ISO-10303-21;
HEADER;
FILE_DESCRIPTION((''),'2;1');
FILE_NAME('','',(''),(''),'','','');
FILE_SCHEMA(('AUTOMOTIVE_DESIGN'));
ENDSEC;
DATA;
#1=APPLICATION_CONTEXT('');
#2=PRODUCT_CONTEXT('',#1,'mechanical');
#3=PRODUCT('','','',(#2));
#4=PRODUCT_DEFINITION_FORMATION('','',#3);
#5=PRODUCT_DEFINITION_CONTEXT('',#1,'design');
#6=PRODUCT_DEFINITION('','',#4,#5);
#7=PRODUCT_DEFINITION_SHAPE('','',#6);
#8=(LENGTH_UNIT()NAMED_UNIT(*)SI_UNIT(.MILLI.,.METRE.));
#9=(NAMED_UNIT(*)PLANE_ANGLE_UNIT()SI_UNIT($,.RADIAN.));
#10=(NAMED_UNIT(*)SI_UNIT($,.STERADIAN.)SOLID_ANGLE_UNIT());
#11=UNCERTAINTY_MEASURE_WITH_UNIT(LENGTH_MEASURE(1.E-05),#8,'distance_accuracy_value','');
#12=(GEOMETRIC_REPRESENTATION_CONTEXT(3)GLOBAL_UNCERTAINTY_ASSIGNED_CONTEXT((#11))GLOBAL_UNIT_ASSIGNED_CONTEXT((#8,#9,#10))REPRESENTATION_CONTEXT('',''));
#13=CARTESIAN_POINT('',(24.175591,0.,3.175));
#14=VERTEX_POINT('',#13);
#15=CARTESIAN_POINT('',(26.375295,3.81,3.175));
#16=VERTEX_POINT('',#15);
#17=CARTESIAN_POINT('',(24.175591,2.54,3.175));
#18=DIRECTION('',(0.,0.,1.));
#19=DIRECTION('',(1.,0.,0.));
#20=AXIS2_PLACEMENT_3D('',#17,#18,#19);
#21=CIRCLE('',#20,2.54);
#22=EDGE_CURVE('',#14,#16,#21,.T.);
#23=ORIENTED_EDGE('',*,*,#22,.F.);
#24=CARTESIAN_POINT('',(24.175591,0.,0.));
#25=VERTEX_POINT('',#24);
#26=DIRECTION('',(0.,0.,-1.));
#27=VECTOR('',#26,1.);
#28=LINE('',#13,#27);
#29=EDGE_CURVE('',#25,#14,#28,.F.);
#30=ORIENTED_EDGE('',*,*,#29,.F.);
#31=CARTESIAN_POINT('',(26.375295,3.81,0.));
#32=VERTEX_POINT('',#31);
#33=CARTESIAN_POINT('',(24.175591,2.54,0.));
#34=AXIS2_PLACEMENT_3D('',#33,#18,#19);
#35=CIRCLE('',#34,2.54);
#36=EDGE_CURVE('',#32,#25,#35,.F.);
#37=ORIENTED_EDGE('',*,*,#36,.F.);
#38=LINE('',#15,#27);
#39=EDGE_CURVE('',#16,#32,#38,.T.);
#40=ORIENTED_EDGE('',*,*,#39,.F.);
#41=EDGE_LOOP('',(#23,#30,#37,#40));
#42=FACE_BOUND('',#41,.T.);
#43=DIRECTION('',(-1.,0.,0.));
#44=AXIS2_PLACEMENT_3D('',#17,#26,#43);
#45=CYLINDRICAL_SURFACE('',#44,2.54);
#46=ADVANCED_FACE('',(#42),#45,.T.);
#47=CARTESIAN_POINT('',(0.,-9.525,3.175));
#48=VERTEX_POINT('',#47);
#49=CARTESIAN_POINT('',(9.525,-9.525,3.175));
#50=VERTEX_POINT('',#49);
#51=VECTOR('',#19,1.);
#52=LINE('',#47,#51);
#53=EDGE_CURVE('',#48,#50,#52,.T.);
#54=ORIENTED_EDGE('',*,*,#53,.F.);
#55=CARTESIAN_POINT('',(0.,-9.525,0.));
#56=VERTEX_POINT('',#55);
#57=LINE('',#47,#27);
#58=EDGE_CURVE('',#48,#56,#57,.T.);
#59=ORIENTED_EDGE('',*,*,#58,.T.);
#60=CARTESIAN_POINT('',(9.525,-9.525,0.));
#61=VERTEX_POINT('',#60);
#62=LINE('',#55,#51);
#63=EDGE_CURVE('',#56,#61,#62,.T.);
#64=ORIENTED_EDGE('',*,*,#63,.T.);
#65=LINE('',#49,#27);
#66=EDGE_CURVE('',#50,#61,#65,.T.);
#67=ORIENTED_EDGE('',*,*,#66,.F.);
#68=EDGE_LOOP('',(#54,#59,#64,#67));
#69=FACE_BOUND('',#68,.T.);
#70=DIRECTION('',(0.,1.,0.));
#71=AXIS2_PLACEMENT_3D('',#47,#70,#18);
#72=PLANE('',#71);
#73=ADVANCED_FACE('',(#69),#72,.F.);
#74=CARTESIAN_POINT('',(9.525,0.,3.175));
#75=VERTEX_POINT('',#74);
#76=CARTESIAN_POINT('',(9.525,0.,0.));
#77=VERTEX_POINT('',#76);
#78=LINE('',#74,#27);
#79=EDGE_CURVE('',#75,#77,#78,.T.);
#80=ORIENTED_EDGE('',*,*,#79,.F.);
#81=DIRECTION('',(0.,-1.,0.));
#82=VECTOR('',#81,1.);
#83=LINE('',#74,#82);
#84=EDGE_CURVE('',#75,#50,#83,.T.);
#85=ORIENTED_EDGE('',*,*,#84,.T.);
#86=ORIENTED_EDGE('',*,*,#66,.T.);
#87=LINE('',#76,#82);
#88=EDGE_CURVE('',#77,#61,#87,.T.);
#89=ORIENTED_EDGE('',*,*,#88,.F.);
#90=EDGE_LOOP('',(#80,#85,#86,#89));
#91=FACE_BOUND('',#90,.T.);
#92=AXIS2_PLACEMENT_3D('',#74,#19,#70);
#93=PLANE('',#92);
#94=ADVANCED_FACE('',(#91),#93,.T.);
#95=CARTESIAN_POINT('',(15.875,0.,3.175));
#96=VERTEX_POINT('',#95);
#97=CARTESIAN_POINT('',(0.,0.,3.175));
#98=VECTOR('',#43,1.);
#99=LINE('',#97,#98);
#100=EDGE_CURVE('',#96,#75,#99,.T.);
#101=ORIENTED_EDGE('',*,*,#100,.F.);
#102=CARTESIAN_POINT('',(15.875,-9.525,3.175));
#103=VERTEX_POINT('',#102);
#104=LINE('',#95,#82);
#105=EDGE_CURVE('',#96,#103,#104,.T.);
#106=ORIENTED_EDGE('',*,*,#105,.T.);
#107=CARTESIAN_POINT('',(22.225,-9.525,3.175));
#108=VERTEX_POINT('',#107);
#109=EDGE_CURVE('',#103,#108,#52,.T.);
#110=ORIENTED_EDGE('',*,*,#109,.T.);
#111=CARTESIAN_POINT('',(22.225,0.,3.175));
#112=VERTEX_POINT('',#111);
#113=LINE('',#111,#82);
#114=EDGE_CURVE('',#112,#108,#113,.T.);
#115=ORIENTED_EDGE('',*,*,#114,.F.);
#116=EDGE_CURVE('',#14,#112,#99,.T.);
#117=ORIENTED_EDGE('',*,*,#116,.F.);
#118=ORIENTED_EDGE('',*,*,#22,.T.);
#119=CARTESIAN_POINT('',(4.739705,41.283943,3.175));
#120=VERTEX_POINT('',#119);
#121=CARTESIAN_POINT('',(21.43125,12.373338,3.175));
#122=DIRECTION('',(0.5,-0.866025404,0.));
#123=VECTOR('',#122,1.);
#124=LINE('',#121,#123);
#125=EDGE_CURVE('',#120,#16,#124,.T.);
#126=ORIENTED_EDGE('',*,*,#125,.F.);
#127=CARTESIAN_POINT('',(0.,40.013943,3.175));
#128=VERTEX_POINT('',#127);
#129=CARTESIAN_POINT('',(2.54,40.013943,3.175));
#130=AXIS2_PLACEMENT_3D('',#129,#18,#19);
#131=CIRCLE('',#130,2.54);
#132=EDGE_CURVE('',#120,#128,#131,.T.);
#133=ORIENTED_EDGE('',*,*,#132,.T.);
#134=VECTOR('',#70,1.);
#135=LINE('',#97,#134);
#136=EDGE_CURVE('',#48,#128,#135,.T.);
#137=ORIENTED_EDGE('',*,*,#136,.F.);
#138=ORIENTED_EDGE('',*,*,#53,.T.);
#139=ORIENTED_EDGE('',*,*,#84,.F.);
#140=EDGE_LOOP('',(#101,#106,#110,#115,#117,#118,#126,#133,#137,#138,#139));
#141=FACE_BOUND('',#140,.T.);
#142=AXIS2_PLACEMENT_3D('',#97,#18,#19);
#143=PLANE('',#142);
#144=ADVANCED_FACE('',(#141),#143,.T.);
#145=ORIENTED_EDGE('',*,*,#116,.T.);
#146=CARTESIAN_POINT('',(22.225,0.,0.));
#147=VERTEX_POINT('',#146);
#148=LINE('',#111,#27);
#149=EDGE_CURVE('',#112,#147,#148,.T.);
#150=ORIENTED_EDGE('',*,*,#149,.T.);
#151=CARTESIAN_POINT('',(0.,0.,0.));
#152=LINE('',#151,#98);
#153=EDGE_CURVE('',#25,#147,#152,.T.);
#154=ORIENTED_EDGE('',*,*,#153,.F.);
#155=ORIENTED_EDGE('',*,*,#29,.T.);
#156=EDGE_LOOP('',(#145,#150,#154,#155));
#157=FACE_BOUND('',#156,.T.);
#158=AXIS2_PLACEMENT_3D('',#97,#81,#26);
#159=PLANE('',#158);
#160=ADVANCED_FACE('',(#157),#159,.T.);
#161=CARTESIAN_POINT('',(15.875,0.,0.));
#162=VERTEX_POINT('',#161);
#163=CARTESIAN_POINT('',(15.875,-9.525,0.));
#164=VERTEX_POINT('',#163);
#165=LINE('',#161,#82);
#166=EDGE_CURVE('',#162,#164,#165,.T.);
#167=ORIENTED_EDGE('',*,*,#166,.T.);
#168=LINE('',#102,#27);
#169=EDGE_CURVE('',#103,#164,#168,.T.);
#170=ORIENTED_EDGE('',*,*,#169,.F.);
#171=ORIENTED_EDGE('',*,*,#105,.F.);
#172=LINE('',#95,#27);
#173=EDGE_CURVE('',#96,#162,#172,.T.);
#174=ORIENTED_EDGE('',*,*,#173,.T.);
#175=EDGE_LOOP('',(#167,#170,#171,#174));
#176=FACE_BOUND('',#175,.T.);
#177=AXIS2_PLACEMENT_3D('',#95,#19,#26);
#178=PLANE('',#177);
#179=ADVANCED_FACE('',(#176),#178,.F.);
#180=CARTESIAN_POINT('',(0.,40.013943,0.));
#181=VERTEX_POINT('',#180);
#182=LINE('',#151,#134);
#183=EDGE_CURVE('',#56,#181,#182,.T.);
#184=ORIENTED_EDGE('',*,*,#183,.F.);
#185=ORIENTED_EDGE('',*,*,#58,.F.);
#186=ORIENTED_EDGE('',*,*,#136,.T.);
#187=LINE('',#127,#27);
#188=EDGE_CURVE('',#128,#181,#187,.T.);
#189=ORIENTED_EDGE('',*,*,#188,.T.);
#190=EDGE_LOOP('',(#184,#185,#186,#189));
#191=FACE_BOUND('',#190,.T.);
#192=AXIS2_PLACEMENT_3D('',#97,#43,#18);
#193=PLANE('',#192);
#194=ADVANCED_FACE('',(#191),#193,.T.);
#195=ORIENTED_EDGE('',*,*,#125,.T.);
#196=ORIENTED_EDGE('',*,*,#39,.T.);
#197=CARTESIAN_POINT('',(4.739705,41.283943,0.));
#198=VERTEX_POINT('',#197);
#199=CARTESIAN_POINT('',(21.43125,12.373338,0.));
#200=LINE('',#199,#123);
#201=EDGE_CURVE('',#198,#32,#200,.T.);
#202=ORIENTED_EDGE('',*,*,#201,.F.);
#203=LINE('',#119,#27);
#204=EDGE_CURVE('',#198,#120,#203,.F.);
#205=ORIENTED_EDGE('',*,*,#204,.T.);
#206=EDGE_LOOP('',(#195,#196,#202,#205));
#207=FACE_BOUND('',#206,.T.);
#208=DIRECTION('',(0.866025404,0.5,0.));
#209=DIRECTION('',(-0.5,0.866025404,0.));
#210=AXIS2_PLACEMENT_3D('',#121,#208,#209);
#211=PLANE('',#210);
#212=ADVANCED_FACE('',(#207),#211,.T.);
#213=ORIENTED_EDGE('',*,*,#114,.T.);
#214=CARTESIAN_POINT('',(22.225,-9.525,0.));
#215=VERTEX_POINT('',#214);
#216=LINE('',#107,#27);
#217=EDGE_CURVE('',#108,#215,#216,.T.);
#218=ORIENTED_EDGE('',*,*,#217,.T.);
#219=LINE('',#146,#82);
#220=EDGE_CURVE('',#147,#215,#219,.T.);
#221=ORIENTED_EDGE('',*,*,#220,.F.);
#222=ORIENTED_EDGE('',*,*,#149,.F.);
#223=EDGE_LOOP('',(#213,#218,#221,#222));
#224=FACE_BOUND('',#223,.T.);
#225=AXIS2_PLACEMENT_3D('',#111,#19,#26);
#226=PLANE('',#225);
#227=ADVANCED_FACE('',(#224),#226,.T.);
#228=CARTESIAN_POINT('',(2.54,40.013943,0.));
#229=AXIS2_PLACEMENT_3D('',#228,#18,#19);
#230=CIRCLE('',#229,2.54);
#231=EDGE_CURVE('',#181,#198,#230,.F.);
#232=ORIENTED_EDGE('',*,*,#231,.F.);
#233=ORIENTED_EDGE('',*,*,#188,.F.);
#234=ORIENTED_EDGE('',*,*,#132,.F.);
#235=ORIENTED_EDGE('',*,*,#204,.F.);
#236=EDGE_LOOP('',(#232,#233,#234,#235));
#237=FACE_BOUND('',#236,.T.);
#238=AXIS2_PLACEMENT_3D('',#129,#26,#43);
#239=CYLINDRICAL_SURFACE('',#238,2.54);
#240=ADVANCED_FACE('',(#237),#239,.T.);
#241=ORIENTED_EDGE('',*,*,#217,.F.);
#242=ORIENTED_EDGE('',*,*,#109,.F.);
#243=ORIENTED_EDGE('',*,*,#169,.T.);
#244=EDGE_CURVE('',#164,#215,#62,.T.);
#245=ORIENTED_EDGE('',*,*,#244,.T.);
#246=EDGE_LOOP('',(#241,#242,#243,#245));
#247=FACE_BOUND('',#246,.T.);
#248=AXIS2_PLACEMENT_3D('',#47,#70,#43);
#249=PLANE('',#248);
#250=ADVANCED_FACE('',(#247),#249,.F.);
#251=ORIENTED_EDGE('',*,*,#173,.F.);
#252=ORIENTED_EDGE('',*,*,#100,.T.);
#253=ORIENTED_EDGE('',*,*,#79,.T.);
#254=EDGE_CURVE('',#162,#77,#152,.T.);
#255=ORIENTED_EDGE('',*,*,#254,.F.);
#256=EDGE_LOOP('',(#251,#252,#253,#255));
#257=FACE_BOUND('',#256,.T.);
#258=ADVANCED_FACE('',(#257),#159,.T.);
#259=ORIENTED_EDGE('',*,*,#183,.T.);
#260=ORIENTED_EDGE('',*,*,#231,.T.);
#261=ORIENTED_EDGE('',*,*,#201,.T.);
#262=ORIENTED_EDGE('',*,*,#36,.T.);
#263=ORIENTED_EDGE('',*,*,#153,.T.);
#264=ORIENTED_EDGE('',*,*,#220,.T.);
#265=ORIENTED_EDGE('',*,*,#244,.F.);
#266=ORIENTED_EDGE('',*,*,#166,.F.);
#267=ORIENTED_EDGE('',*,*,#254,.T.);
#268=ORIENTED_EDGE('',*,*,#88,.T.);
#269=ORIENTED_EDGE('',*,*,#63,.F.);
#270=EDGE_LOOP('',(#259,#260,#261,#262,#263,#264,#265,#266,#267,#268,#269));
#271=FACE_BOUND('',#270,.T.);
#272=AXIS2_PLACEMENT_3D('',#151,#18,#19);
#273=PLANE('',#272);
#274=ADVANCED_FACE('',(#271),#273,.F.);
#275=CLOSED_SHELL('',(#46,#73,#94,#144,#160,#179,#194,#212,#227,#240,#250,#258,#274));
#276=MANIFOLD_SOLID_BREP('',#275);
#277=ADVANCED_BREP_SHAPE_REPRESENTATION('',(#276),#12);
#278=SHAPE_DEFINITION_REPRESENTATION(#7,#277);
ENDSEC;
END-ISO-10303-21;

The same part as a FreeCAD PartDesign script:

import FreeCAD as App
import Part
import Sketcher

V = App.Vector
Q = App.Units.Quantity


def edges_at(feature, points):
    """Names of the edges that pass closest to the given points."""
    edges = feature.Shape.Edges
    near = lambda p: min(range(len(edges)), key=lambda i: edges[i].distToShape(Part.Vertex(*p))[0])
    return sorted({f"Edge{near(p) + 1}" for p in points})


def add_polygon(sketch, points):
    """Adds a closed chain of lines whose ends are joined by coincident constraints."""
    first, n = sketch.GeometryCount, len(points)
    for a, b in zip(points, points[1:] + points[:1]):
        sketch.addGeometry(Part.LineSegment(App.Vector(*a, 0), App.Vector(*b, 0)), False)
    for i in range(n):
        sketch.addConstraint(Sketcher.Constraint("Coincident", first + i, 2, first + (i + 1) % n, 1))

doc = App.newDocument("Part")
body = doc.addObject("PartDesign::Body", "Body")

# Sketch on XY plane
sketch1 = body.newObject("Sketcher::SketchObject", "Sketch")
sketch1.AttachmentSupport = (doc.getObject("XY_Plane"), [""])
sketch1.MapMode = "FlatFace"
add_polygon(sketch1, [(22, 0), (29, 0), (0, 49), (0, -10), (10, -10), (10, 0), (16, 0), (16, -10), (22, -10)])  # lines 0-8
sketch1.addConstraint([
    Sketcher.Constraint("Horizontal", 0),
    Sketcher.Constraint("Vertical", 2),
    Sketcher.Constraint("Horizontal", 3),
    Sketcher.Constraint("Vertical", 4),
    Sketcher.Constraint("Horizontal", 5),
    Sketcher.Constraint("Vertical", 6),
    Sketcher.Constraint("Horizontal", 7),
    Sketcher.Constraint("Vertical", 8),
    Sketcher.Constraint("PointOnObject", 0, 2, -1),
    Sketcher.Constraint("PointOnObject", 1, 2, -2),
    Sketcher.Constraint("PointOnObject", 4, 2, -1),
    Sketcher.Constraint("Horizontal", 3, 2, 6, 2),
    Sketcher.Constraint("Equal", 0, 5),
    Sketcher.Constraint("Equal", 5, 7),
    Sketcher.Constraint("Equal", 3, 4),
    Sketcher.Constraint("Angle", 1, Q("120 deg")),
    Sketcher.Constraint("DistanceX", 0, 1, 0, 2, Q("0.25 in")),
    Sketcher.Constraint("Distance", 1, Q("2.25 in")),
])
pad1 = body.newObject("PartDesign::Pad", "Pad")
pad1.Profile = sketch1
pad1.Length = Q("0.125 in")
doc.recompute()

fillet = body.newObject("PartDesign::Fillet", "Fillet")
fillet.Base = (pad1, edges_at(pad1, [(0, 49.493, 1.587), (28.575, 0, 1.587)]))
fillet.Radius = Q("0.1 in")

doc.recompute()
